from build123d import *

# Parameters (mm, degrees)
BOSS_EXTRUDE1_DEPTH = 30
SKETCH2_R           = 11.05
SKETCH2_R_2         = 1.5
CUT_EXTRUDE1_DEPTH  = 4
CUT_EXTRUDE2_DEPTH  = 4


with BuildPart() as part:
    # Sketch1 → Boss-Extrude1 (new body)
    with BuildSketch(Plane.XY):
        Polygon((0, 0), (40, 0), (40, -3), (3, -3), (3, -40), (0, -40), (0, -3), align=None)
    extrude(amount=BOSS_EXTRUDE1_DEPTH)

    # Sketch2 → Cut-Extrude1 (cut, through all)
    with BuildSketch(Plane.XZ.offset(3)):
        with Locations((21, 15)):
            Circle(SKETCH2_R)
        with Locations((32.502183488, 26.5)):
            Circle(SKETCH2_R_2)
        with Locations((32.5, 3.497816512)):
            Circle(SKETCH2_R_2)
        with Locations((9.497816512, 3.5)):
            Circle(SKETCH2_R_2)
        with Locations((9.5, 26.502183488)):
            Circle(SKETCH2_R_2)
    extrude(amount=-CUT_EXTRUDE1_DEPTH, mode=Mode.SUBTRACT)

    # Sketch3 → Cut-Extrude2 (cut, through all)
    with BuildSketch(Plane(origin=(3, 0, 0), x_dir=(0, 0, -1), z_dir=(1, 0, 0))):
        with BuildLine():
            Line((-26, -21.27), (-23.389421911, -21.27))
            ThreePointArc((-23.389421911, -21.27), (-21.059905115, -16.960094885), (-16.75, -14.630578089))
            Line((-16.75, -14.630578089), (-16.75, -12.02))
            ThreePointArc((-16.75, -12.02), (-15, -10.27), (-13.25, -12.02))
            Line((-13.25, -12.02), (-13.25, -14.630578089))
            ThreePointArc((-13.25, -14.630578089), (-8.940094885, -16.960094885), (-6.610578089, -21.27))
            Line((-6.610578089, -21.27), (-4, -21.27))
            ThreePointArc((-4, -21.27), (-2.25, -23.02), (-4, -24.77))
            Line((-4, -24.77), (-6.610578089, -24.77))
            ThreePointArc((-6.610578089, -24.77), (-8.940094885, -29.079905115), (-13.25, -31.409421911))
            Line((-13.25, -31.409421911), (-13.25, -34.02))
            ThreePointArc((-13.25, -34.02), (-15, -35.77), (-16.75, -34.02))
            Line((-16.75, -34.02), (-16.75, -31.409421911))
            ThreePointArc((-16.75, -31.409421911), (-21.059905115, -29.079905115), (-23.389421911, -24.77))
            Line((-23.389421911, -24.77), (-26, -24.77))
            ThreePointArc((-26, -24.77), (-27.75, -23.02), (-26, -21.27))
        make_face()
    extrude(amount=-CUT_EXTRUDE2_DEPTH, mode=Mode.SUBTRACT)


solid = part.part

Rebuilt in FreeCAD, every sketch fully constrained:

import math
import FreeCAD as App
import Part
import Sketcher

V = App.Vector


def add_polygon(sketch, points):
    """Adds a closed chain of lines whose ends are joined by coincident constraints."""
    first, n = sketch.GeometryCount, len(points)
    for a, b in zip(points, points[1:] + points[:1]):
        sketch.addGeometry(Part.LineSegment(App.Vector(*a, 0), App.Vector(*b, 0)), False)
    for i in range(n):
        sketch.addConstraint(Sketcher.Constraint("Coincident", first + i, 2, first + (i + 1) % n, 1))

doc = App.newDocument("Part")
body = doc.addObject("PartDesign::Body", "Body")

sketch1 = body.newObject("Sketcher::SketchObject", "Sketch")
sketch1.AttachmentSupport = (doc.getObject("XY_Plane"), [""])
sketch1.MapMode = "FlatFace"
add_polygon(sketch1, [(40, 0), (0, 0), (0, -40), (3, -40), (3, -3), (40, -3)])
sketch1.addConstraint([
    Sketcher.Constraint("Horizontal", 0),
    Sketcher.Constraint("Vertical", 1),
    Sketcher.Constraint("Horizontal", 2),
    Sketcher.Constraint("Vertical", 3),
    Sketcher.Constraint("Horizontal", 4),
    Sketcher.Constraint("Vertical", 5),
    Sketcher.Constraint("Coincident", 0, 2, -1, 1),
    Sketcher.Constraint("Equal", 0, 1),
    Sketcher.Constraint("Equal", 4, 3),
    Sketcher.Constraint("DistanceX", 0, 2, 0, 1, 40.0),
    Sketcher.Constraint("DistanceX", 2, 1, 2, 2, 3.0),
])
pad1 = body.newObject("PartDesign::Pad", "Pad")
pad1.Profile = sketch1
pad1.Length = 30

sketch2 = body.newObject("Sketcher::SketchObject", "Sketch001")
sketch2.AttachmentSupport = (doc.getObject("XZ_Plane"), [""])
sketch2.MapMode = "FlatFace"
sketch2.AttachmentOffset = App.Placement(V(0, 0, 3), App.Rotation())
sketch2.addGeometry([
    Part.Circle(V(21, 15, 0), V(0, 0, 1), 11.05),
    Part.Circle(V(32.502183, 26.5, 0), V(0, 0, 1), 1.5),
    Part.Circle(V(32.5, 3.497817, 0), V(0, 0, 1), 1.5),
    Part.Circle(V(9.497817, 3.5, 0), V(0, 0, 1), 1.5),
    Part.Circle(V(9.5, 26.502183, 0), V(0, 0, 1), 1.5),
], False)
sketch2.addConstraint([
    Sketcher.Constraint("Equal", 1, 2),
    Sketcher.Constraint("Equal", 2, 3),
    Sketcher.Constraint("Equal", 3, 4),
    Sketcher.Constraint("Diameter", 1, 3.0),
    Sketcher.Constraint("Diameter", 0, 22.1),
    Sketcher.Constraint("DistanceX", -1, 1, 0, 3, 21.0),
    Sketcher.Constraint("DistanceY", -1, 1, 0, 3, 15.0),
    Sketcher.Constraint("DistanceY", 3, 3, 1, 3, 23.0),
    Sketcher.Constraint("DistanceX", 4, 3, 2, 3, 23.0),
    Sketcher.Constraint("DistanceY", -1, 1, 1, 3, 26.5),
    Sketcher.Constraint("DistanceX", -1, 1, 2, 3, 32.5),
    Sketcher.Constraint("DistanceX", -1, 1, 1, 3, 32.502183),
    Sketcher.Constraint("DistanceY", -1, 1, 2, 3, 3.497817),
    Sketcher.Constraint("DistanceX", -1, 1, 3, 3, 9.497817),
    Sketcher.Constraint("DistanceY", -1, 1, 4, 3, 26.502183),
])
pocket1 = body.newObject("PartDesign::Pocket", "Pocket")
pocket1.Profile = sketch2
pocket1.Type = "ThroughAll"

sketch3 = body.newObject("Sketcher::SketchObject", "Sketch002")
sketch3.AttachmentSupport = (doc.getObject("YZ_Plane"), [""])
sketch3.MapMode = "FlatFace"
sketch3.AttachmentOffset = App.Placement(V(0, 0, 3), App.Rotation())
sketch3.addGeometry([
    Part.LineSegment(V(-21.27, 23.389422, 0), V(-21.27, 26, 0)),
    Part.ArcOfCircle(Part.Circle(V(-23.02, 26, 0), V(0, 0, 1), 1.75), math.radians(0), math.radians(180)),
    Part.LineSegment(V(-24.77, 26, 0), V(-24.77, 23.389422, 0)),
    Part.ArcOfCircle(Part.Circle(V(-23.02, 15, 0), V(0, 0, 1), 8.57), math.radians(101.782713), math.radians(168.217287)),
    Part.LineSegment(V(-31.409422, 16.75, 0), V(-34.02, 16.75, 0)),
    Part.ArcOfCircle(Part.Circle(V(-34.02, 15, 0), V(0, 0, 1), 1.75), math.radians(90), math.radians(270)),
    Part.LineSegment(V(-34.02, 13.25, 0), V(-31.409422, 13.25, 0)),
    Part.ArcOfCircle(Part.Circle(V(-23.02, 15, 0), V(0, 0, 1), 8.57), math.radians(-168.217287), math.radians(-101.782713)),
    Part.LineSegment(V(-24.77, 6.610578, 0), V(-24.77, 4, 0)),
    Part.ArcOfCircle(Part.Circle(V(-23.02, 4, 0), V(0, 0, 1), 1.75), math.radians(180), math.radians(360)),
    Part.LineSegment(V(-21.27, 4, 0), V(-21.27, 6.610578, 0)),
    Part.ArcOfCircle(Part.Circle(V(-23.02, 15, 0), V(0, 0, 1), 8.57), math.radians(-78.217287), math.radians(-11.782713)),
    Part.LineSegment(V(-14.630578, 13.25, 0), V(-12.02, 13.25, 0)),
    Part.ArcOfCircle(Part.Circle(V(-12.02, 15, 0), V(0, 0, 1), 1.75), math.radians(-90), math.radians(90)),
    Part.LineSegment(V(-12.02, 16.75, 0), V(-14.630578, 16.75, 0)),
    Part.ArcOfCircle(Part.Circle(V(-23.02, 15, 0), V(0, 0, 1), 8.57), math.radians(11.782713), math.radians(78.217287)),
], False)
sketch3.addConstraint([
    Sketcher.Constraint("Tangent", 0, 2, 1, 1),
    Sketcher.Constraint("Tangent", 1, 2, 2, 1),
    Sketcher.Constraint("Coincident", 2, 2, 3, 1),
    Sketcher.Constraint("Coincident", 3, 2, 4, 1),
    Sketcher.Constraint("Tangent", 4, 2, 5, 1),
    Sketcher.Constraint("Tangent", 5, 2, 6, 1),
    Sketcher.Constraint("Coincident", 6, 2, 7, 1),
    Sketcher.Constraint("Coincident", 7, 2, 8, 1),
    Sketcher.Constraint("Tangent", 8, 2, 9, 1),
    Sketcher.Constraint("Tangent", 9, 2, 10, 1),
    Sketcher.Constraint("Coincident", 10, 2, 11, 1),
    Sketcher.Constraint("Coincident", 11, 2, 12, 1),
    Sketcher.Constraint("Tangent", 12, 2, 13, 1),
    Sketcher.Constraint("Tangent", 13, 2, 14, 1),
    Sketcher.Constraint("Coincident", 14, 2, 15, 1),
    Sketcher.Constraint("Coincident", 15, 2, 0, 1),
    Sketcher.Constraint("Vertical", 0),
    Sketcher.Constraint("Vertical", 2),
    Sketcher.Constraint("Horizontal", 4),
    Sketcher.Constraint("Horizontal", 6),
    Sketcher.Constraint("Vertical", 8),
    Sketcher.Constraint("Vertical", 10),
    Sketcher.Constraint("Horizontal", 12),
    Sketcher.Constraint("Horizontal", 14),
    Sketcher.Constraint("Coincident", 7, 3, 3, 3),
    Sketcher.Constraint("Coincident", 11, 3, 3, 3),
    Sketcher.Constraint("Coincident", 15, 3, 3, 3),
    Sketcher.Constraint("Equal", 1, 5),
    Sketcher.Constraint("Equal", 3, 7),
    Sketcher.Constraint("Equal", 5, 9),
    Sketcher.Constraint("Equal", 7, 11),
    Sketcher.Constraint("Equal", 9, 13),
    Sketcher.Constraint("Equal", 11, 15),
    Sketcher.Constraint("Horizontal", 3, 3, 5, 3),
    Sketcher.Constraint("Horizontal", 11, 3, 13, 3),
    Sketcher.Constraint("Horizontal", 7, 2, 10, 2),
    Sketcher.Constraint("Horizontal", 2, 2, 15, 2),
    Sketcher.Constraint("Equal", 6, 12),
    Sketcher.Constraint("Equal", 14, 0),
    Sketcher.Constraint("Equal", 2, 8),
    Sketcher.Constraint("Radius", 1, 1.75),
    Sketcher.Constraint("Radius", 3, 8.57),
    Sketcher.Constraint("DistanceY", -1, 1, 1, 3, 26.0),
    Sketcher.Constraint("DistanceY", -1, 1, 3, 3, 15.0),
    Sketcher.Constraint("DistanceX", 1, 3, -1, 1, 23.02),
])
pocket2 = body.newObject("PartDesign::Pocket", "Pocket001")
pocket2.Profile = sketch3
pocket2.Type = "ThroughAll"

doc.recompute()
